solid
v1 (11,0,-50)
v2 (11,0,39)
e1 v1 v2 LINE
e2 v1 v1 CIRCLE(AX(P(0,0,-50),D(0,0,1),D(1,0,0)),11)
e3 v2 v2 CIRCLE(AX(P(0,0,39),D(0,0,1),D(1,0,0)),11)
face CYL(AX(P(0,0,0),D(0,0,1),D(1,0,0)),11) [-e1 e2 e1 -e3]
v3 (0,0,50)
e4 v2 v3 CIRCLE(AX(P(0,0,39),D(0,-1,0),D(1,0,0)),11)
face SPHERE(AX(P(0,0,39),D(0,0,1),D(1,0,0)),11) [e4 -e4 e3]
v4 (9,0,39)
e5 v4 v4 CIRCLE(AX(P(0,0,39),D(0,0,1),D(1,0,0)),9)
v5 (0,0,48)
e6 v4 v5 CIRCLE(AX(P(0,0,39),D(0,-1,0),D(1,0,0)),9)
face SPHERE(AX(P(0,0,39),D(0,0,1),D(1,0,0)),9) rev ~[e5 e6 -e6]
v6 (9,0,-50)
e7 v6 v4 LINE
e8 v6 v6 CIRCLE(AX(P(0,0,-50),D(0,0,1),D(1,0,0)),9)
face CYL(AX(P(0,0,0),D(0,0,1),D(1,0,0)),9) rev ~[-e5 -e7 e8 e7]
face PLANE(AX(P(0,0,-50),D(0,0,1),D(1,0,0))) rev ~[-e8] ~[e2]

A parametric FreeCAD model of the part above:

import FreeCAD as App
import Part
import Sketcher
Q = App.Units.Quantity


def edges_at(feature, points):
    """Names of the edges that pass closest to the given points."""
    edges = feature.Shape.Edges
    near = lambda p: min(range(len(edges)), key=lambda i: edges[i].distToShape(Part.Vertex(*p))[0])
    return sorted({f"Edge{near(p) + 1}" for p in points})


def faces_at(feature, points):
    """Names of the faces that lie closest to the given points."""
    faces = feature.Shape.Faces
    near = lambda p: min(range(len(faces)), key=lambda i: faces[i].distToShape(Part.Vertex(*p))[0])
    return sorted({f"Face{near(p) + 1}" for p in points})

doc = App.newDocument("Part")
body = doc.addObject("PartDesign::Body", "Body")

# Sketch on XY plane
sketch1 = body.newObject("Sketcher::SketchObject", "Sketch")
sketch1.AttachmentSupport = (doc.getObject("XY_Plane"), [""])
sketch1.MapMode = "FlatFace"
sketch1.addGeometry(Part.Circle(App.Vector(0, 0, 0), App.Vector(0, 0, 1), 11), False)
sketch1.addConstraint([
    Sketcher.Constraint("Coincident", 0, 3, -1, 1),
    Sketcher.Constraint("Diameter", 0, Q("22 mm")),
])
pad1 = body.newObject("PartDesign::Pad", "Pad")
pad1.Profile = sketch1
pad1.Length = 100
pad1.Midplane = True
doc.recompute()

fillet = body.newObject("PartDesign::Fillet", "Fillet")
fillet.Base = (pad1, edges_at(pad1, [(-11, 0, 50)]))
fillet.Radius = 11
doc.recompute()

thickness = body.newObject("PartDesign::Thickness", "Thickness")
thickness.Base = (fillet, faces_at(fillet, [(0, 0, -50)]))
thickness.Value = 2
thickness.Reversed = True
thickness.Join = "Arc"

doc.recompute()
